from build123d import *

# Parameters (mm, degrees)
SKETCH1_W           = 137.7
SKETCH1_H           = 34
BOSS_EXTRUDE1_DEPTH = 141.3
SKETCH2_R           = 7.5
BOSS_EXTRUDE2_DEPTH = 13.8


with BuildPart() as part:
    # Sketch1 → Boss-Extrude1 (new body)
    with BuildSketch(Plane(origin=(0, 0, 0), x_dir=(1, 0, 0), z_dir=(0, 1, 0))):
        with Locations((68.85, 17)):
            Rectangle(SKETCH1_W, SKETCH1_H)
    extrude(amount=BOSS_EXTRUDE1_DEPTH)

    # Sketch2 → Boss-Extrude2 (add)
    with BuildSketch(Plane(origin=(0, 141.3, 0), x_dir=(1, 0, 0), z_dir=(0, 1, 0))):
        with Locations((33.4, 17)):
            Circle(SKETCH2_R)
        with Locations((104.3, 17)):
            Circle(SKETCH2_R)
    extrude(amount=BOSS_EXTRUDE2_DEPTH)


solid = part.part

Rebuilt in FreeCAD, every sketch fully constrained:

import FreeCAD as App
import Part
import Sketcher

V = App.Vector


def add_polygon(sketch, points):
    """Adds a closed chain of lines whose ends are joined by coincident constraints."""
    first, n = sketch.GeometryCount, len(points)
    for a, b in zip(points, points[1:] + points[:1]):
        sketch.addGeometry(Part.LineSegment(App.Vector(*a, 0), App.Vector(*b, 0)), False)
    for i in range(n):
        sketch.addConstraint(Sketcher.Constraint("Coincident", first + i, 2, first + (i + 1) % n, 1))

doc = App.newDocument("Part")
body = doc.addObject("PartDesign::Body", "Body")

# Sketch on XZ plane
sketch1 = body.newObject("Sketcher::SketchObject", "Sketch")
sketch1.AttachmentSupport = (doc.getObject("XZ_Plane"), [""])
sketch1.MapMode = "FlatFace"
add_polygon(sketch1, [(0, -34), (0, 0), (137.7, 0), (137.7, -34)])  # lines 0-3
sketch1.addConstraint(Sketcher.Constraint("Vertical", 0))
sketch1.addConstraint(Sketcher.Constraint("Horizontal", 1))
sketch1.addConstraint(Sketcher.Constraint("Vertical", 2))
sketch1.addConstraint(Sketcher.Constraint("Horizontal", 3))
sketch1.addConstraint(Sketcher.Constraint("Coincident", 0, 2, -1, 1))
sketch1.addConstraint(Sketcher.Constraint("DistanceY", 0, 1, 0, 2, 34.0))
sketch1.addConstraint(Sketcher.Constraint("DistanceX", 1, 1, 1, 2, 137.7))
pad1 = body.newObject("PartDesign::Pad", "Pad")
pad1.Profile = sketch1
pad1.Length = 141.3
pad1.Reversed = True

# Sketch on XZ plane
sketch2 = body.newObject("Sketcher::SketchObject", "Sketch001")
sketch2.AttachmentSupport = (doc.getObject("XZ_Plane"), [""])
sketch2.MapMode = "FlatFace"
sketch2.AttachmentOffset = App.Placement(V(0, 0, -141.3), App.Rotation())
sketch2.addGeometry(Part.Circle(V(33.4, -17, 0), V(0, 0, 1), 7.5), False)
sketch2.addGeometry(Part.Circle(V(104.3, -17, 0), V(0, 0, 1), 7.5), False)
sketch2.addConstraint(Sketcher.Constraint("Equal", 0, 1))
sketch2.addConstraint(Sketcher.Constraint("Horizontal", 0, 3, 1, 3))
sketch2.addConstraint(Sketcher.Constraint("Diameter", 0, 15.0))
sketch2.addConstraint(Sketcher.Constraint("DistanceY", 0, 3, -1, 1, 17.0))
sketch2.addConstraint(Sketcher.Constraint("DistanceX", -1, 1, 0, 3, 33.4))
sketch2.addConstraint(Sketcher.Constraint("DistanceX", -1, 1, 1, 3, 104.3))
pad2 = body.newObject("PartDesign::Pad", "Pad001")
pad2.Profile = sketch2
pad2.Length = 13.8
pad2.Reversed = True

doc.recompute()
